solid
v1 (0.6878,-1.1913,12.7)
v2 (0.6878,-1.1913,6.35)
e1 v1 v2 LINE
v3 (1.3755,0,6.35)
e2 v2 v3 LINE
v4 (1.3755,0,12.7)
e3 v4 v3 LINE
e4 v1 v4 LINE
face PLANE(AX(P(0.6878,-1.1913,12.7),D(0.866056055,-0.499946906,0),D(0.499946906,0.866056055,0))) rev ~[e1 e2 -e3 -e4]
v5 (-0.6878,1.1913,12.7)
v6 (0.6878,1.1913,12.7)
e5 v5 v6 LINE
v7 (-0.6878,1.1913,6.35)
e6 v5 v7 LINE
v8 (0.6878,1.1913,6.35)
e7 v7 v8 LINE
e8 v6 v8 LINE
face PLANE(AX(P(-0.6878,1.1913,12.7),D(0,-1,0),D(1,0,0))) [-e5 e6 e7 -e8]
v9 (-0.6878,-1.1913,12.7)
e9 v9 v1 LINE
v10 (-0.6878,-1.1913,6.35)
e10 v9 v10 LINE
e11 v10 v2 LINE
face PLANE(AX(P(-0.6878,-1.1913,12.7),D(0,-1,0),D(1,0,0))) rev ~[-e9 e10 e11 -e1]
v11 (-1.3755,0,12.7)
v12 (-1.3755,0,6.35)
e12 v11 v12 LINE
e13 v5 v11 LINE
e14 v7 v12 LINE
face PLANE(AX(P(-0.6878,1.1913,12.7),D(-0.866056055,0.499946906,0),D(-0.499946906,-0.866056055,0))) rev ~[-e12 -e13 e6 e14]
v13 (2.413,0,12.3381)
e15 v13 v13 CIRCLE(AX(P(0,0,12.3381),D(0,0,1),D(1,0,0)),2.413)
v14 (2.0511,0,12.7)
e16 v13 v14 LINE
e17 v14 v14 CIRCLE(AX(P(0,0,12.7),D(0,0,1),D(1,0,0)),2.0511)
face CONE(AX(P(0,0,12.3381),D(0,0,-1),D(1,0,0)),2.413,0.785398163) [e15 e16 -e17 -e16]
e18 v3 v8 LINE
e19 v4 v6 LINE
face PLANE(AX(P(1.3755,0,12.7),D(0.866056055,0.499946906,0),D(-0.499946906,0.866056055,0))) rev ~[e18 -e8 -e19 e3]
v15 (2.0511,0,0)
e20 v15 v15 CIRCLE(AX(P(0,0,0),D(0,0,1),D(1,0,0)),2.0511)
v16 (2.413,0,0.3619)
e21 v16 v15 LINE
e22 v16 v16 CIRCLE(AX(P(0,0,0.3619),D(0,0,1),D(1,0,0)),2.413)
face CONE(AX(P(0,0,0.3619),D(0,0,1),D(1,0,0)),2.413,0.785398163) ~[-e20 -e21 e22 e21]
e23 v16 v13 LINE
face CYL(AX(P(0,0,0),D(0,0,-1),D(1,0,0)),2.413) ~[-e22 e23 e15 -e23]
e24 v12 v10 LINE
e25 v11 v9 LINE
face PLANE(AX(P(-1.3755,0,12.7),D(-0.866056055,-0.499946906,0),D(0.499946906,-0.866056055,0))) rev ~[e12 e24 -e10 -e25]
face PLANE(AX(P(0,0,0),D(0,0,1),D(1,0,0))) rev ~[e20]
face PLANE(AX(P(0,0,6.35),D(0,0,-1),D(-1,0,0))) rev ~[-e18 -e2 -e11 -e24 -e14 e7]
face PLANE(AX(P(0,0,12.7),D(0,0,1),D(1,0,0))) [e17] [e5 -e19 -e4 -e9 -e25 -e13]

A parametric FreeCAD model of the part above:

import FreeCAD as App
import Part
import Sketcher
from FreeCAD import Vector
Q = App.Units.Quantity


def edges_at(feature, points):
    """Names of the edges that pass closest to the given points."""
    edges = feature.Shape.Edges
    near = lambda p: min(range(len(edges)), key=lambda i: edges[i].distToShape(Part.Vertex(*p))[0])
    return sorted({f"Edge{near(p) + 1}" for p in points})

doc = App.newDocument("Part")
body = doc.addObject("PartDesign::Body", "Body")

sketch1 = body.newObject("Sketcher::SketchObject", "Sketch")
sketch1.AttachmentSupport = (doc.getObject("XY_Plane"), [""])
sketch1.MapMode = "FlatFace"
sketch1.addGeometry(Part.Circle(Vector(0, 0, 0), Vector(0, 0, 1), 2.413), False)
sketch1.addConstraint(Sketcher.Constraint("Coincident", 0, 3, -1, 1))
sketch1.addConstraint(Sketcher.Constraint("Diameter", 0, Q("0.19 in")))
pad1 = body.newObject("PartDesign::Pad", "Pad")
pad1.Profile = sketch1
pad1.Length = Q("0.5 in")
doc.recompute()

chamfer = body.newObject("PartDesign::Chamfer", "Chamfer")
chamfer.Base = (pad1, edges_at(pad1, [(-2.413, 0, 0), (-2.413, 0, 12.7)]))
chamfer.Size = 0.3619

sketch2 = body.newObject("Sketcher::SketchObject", "Sketch001")
sketch2.AttachmentSupport = (doc.getObject("XY_Plane"), [""])
sketch2.MapMode = "FlatFace"
sketch2.AttachmentOffset = App.Placement(Vector(0, 0, 0.5 * 25.4), App.Rotation())
sketch2.addGeometry(Part.LineSegment(Vector(0.6878, 1.1913, 0), Vector(-0.6878, 1.1913, 0)), False)
sketch2.addGeometry(Part.LineSegment(Vector(-0.6878, 1.1913, 0), Vector(-1.3755, 0, 0)), False)
sketch2.addGeometry(Part.LineSegment(Vector(-1.3755, 0, 0), Vector(-0.6878, -1.1913, 0)), False)
sketch2.addGeometry(Part.LineSegment(Vector(-0.6878, -1.1913, 0), Vector(0.6878, -1.1913, 0)), False)
sketch2.addGeometry(Part.LineSegment(Vector(0.6878, -1.1913, 0), Vector(1.3755, 0, 0)), False)
sketch2.addGeometry(Part.LineSegment(Vector(1.3755, 0, 0), Vector(0.6878, 1.1913, 0)), False)
sketch2.addConstraint(Sketcher.Constraint("Coincident", 0, 2, 1, 1))
sketch2.addConstraint(Sketcher.Constraint("Coincident", 1, 2, 2, 1))
sketch2.addConstraint(Sketcher.Constraint("Coincident", 2, 2, 3, 1))
sketch2.addConstraint(Sketcher.Constraint("Coincident", 3, 2, 4, 1))
sketch2.addConstraint(Sketcher.Constraint("Coincident", 4, 2, 5, 1))
sketch2.addConstraint(Sketcher.Constraint("Coincident", 5, 2, 0, 1))
sketch2.addConstraint(Sketcher.Constraint("Horizontal", 0))
sketch2.addConstraint(Sketcher.Constraint("Horizontal", 3))
sketch2.addConstraint(Sketcher.Constraint("Symmetric", 0, 2, 3, 2, -1, 1))
sketch2.addConstraint(Sketcher.Constraint("Symmetric", 1, 2, 4, 2, -1, 1))
sketch2.addConstraint(Sketcher.Constraint("PointOnObject", 1, 2, -1))
sketch2.addConstraint(Sketcher.Constraint("Parallel", 2, 5))
sketch2.addConstraint(Sketcher.Constraint("Vertical", 0, 2, 2, 2))
sketch2.addConstraint(Sketcher.Constraint("DistanceX", 0, 2, 0, 1, Q("1.3756 mm")))
sketch2.addConstraint(Sketcher.Constraint("DistanceY", -1, 1, 0, 2, Q("0.0469 in")))
sketch2.addConstraint(Sketcher.Constraint("DistanceX", 1, 2, 4, 2, Q("0.1083 in")))
pocket1 = body.newObject("PartDesign::Pocket", "Pocket")
pocket1.Profile = sketch2
pocket1.Length = Q("0.25 in")

doc.recompute()
